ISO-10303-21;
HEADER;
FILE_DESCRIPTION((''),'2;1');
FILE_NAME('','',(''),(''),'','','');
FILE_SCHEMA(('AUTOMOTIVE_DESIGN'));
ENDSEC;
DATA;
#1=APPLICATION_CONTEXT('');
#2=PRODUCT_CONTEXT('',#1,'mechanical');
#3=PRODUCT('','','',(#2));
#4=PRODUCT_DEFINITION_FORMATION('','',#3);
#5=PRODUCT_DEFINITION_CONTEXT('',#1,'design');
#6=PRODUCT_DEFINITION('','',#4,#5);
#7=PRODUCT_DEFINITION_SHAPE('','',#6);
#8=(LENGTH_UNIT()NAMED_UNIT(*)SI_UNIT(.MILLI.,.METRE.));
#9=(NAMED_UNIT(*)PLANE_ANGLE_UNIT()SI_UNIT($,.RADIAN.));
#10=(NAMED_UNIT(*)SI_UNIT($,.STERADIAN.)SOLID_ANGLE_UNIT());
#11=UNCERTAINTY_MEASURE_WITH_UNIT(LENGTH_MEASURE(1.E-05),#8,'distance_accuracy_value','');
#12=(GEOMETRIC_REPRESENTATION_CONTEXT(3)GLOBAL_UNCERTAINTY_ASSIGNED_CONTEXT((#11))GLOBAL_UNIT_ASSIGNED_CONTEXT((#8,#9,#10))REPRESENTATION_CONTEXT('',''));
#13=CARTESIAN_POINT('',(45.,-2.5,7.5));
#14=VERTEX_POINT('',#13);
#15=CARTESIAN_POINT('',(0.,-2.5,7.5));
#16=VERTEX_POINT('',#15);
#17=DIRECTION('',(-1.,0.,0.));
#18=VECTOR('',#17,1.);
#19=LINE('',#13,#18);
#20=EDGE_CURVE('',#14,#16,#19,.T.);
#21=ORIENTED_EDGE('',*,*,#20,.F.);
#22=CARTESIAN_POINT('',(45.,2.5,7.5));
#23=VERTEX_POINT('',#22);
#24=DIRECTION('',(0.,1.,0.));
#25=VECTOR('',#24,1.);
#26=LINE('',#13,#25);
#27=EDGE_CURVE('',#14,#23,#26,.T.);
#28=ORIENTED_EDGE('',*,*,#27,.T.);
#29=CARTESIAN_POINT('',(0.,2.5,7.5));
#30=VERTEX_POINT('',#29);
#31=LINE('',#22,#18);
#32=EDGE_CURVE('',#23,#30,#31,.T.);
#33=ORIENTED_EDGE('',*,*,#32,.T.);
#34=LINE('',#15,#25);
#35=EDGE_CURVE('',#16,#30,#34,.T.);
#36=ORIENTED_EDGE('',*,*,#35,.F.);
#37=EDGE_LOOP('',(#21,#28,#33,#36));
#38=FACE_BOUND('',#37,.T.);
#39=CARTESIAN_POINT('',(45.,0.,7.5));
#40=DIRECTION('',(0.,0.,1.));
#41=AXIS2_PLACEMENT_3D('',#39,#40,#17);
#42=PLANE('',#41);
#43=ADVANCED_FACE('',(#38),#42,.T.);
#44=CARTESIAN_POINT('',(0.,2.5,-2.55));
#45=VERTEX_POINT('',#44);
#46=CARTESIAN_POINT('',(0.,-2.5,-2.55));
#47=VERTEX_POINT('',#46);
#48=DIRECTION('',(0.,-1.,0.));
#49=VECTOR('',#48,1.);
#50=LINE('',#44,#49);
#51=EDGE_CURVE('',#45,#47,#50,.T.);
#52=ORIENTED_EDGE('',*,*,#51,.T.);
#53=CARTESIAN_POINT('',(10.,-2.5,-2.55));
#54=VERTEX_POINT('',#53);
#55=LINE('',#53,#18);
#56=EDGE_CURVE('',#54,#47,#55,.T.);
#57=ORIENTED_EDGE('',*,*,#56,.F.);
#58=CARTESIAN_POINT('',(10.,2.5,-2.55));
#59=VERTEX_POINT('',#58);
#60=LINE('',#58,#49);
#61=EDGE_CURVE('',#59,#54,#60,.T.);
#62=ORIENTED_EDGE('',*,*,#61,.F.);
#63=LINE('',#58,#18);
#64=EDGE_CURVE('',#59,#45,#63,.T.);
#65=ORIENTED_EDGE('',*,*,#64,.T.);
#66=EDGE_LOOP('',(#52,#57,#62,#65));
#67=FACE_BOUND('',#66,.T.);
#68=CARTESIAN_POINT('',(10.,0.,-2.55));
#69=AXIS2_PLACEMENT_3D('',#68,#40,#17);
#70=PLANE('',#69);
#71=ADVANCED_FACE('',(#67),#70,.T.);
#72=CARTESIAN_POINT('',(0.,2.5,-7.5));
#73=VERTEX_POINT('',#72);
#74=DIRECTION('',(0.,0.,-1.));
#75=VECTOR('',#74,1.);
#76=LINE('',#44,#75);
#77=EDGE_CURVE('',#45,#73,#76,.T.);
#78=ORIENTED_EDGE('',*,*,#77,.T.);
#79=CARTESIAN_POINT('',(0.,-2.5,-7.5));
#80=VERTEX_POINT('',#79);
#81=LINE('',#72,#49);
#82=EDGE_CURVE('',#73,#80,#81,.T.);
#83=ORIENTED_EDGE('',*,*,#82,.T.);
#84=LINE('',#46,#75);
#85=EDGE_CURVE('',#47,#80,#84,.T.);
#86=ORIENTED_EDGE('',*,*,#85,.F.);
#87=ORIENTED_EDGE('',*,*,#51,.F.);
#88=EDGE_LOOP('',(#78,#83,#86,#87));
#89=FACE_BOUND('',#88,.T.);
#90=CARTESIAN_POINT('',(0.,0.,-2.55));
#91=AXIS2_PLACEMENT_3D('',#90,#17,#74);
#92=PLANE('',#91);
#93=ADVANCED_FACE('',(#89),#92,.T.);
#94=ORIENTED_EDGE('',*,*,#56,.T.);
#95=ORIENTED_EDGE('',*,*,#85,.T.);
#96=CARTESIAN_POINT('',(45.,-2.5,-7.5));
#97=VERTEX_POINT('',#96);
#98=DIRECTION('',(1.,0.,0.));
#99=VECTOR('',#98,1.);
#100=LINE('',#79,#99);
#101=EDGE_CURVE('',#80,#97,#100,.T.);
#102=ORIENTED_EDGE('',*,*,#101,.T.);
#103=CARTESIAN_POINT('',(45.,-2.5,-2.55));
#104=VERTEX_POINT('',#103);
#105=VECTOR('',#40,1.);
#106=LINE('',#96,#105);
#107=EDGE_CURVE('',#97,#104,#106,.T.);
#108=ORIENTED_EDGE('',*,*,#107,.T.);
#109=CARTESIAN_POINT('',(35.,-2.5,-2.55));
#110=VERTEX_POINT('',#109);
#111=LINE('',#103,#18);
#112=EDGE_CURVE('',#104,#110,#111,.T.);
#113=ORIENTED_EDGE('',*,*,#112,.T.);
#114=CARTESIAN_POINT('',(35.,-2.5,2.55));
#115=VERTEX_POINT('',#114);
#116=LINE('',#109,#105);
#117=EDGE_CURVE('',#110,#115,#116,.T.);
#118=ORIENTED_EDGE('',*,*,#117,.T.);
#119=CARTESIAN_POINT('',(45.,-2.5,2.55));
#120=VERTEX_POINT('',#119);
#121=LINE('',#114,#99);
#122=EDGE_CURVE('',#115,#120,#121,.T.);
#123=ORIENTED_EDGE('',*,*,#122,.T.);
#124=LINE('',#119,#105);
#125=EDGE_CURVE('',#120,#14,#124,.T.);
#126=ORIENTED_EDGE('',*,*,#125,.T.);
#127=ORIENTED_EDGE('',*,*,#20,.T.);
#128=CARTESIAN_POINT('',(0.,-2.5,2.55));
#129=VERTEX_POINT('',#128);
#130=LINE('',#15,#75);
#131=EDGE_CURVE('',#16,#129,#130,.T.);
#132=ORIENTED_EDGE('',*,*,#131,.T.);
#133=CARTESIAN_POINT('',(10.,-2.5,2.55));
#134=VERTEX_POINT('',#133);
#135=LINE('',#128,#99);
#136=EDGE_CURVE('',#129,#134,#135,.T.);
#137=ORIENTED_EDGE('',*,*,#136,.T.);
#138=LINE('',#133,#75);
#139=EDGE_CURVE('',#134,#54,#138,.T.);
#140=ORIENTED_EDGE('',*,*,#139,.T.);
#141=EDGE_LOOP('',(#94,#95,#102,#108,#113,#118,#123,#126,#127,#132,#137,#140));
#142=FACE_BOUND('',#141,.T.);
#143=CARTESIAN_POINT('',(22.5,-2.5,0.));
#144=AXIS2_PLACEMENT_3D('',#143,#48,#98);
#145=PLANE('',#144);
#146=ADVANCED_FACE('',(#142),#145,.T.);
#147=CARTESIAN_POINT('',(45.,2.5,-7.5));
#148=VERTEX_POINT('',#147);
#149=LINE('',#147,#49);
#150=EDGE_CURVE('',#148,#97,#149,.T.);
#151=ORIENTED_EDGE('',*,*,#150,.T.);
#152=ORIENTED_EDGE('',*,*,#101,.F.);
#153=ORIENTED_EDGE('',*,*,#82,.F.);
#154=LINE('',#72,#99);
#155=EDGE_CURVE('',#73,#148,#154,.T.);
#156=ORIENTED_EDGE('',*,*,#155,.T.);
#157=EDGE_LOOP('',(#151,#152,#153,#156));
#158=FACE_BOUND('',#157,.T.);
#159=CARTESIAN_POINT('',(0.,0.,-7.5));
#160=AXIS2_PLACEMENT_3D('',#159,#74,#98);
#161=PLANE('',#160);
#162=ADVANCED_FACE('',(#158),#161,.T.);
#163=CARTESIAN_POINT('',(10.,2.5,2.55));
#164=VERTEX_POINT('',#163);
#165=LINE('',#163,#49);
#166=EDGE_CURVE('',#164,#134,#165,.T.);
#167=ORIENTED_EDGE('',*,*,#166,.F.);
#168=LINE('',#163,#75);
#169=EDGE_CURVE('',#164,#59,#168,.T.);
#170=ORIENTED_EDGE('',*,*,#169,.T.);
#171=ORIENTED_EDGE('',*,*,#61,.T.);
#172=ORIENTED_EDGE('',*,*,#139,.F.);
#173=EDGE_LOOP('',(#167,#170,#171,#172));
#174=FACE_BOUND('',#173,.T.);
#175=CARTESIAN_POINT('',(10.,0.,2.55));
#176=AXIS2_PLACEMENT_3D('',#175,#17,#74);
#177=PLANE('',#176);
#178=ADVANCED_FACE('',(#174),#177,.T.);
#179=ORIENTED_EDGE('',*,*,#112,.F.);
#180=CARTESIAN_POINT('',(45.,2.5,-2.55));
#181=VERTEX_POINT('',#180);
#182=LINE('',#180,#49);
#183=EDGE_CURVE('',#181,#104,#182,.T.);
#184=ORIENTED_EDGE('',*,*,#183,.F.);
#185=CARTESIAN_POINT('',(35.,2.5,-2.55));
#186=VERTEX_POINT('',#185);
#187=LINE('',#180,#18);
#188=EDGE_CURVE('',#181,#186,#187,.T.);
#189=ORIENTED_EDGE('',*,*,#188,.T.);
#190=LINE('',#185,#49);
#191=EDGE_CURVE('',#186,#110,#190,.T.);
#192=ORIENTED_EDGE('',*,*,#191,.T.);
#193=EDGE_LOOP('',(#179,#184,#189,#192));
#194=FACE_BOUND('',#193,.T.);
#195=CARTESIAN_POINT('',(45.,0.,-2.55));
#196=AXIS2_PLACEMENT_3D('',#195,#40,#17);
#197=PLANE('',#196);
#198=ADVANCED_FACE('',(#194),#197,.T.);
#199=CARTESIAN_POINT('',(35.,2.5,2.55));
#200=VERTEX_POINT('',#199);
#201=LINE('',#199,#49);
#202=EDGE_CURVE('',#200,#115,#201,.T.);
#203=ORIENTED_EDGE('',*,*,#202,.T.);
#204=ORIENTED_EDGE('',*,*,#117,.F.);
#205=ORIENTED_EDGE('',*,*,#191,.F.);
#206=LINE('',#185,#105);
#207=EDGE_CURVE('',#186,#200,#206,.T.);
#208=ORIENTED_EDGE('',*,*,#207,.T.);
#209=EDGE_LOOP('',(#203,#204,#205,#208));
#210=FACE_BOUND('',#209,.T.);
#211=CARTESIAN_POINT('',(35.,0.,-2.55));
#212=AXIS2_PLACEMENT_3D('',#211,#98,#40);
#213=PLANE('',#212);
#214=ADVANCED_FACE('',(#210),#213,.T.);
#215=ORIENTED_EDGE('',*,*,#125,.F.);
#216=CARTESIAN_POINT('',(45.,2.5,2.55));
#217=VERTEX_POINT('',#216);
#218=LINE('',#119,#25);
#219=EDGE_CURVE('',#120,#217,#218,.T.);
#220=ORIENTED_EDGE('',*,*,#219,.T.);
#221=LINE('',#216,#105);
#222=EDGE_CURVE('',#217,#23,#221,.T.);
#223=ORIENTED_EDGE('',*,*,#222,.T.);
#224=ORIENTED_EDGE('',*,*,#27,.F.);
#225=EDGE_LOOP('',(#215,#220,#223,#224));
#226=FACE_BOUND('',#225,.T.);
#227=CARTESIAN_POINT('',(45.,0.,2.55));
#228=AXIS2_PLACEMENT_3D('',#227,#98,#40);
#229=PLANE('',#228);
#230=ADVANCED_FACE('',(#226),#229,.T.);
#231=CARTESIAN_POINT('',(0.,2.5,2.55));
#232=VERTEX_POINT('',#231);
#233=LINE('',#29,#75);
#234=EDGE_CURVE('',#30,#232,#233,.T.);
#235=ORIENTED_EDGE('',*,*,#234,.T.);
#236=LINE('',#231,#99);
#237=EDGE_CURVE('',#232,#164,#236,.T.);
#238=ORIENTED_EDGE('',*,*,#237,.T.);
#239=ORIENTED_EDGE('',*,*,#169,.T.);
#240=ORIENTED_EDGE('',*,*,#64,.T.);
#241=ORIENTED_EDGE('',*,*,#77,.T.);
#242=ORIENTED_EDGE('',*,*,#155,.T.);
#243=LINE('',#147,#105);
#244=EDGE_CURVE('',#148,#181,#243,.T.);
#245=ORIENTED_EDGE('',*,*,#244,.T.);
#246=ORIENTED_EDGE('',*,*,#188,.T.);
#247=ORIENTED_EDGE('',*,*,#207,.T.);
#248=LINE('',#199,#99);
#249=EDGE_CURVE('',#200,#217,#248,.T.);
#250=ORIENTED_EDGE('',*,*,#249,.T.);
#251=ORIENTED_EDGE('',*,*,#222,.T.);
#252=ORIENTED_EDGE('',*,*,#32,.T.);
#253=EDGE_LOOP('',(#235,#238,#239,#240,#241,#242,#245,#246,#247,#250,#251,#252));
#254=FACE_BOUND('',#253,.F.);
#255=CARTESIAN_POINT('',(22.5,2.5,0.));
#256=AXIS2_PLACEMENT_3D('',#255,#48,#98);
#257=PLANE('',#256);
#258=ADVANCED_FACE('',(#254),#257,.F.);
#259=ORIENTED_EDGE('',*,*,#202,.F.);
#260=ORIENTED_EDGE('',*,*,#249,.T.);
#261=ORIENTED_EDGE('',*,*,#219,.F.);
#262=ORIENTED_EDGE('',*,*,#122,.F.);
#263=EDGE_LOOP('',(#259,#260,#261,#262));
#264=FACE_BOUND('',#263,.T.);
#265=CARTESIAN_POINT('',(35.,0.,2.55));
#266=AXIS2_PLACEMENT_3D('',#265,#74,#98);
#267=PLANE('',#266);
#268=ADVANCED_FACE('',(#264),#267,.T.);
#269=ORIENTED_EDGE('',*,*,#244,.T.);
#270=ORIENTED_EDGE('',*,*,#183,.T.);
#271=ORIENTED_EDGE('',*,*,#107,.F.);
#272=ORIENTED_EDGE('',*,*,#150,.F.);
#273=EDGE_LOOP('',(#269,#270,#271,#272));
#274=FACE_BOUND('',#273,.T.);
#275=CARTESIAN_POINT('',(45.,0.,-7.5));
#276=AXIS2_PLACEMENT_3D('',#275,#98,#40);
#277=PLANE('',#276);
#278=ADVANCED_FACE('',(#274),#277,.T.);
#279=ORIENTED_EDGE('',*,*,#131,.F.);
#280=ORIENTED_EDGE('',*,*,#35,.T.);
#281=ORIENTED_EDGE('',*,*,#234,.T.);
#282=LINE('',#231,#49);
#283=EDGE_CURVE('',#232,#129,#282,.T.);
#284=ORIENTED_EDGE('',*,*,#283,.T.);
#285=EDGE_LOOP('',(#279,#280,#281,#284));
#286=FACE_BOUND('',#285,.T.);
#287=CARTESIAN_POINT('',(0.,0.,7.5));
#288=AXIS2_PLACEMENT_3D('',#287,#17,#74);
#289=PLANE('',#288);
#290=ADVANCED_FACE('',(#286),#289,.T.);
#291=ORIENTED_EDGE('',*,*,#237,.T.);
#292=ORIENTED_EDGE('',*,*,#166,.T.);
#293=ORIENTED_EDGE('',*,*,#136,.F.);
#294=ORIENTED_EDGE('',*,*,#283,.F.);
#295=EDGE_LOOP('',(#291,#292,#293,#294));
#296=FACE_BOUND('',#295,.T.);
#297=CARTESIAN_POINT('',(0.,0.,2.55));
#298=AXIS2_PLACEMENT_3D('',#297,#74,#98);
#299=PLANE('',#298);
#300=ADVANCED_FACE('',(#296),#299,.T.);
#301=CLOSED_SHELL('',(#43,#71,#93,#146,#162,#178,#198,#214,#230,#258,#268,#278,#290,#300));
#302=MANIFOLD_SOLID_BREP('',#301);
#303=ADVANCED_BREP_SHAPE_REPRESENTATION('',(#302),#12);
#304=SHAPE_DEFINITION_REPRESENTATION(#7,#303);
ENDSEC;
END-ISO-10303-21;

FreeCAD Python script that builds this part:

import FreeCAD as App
import Part
import Sketcher

V = App.Vector
Q = App.Units.Quantity


def add_polygon(sketch, points):
    """Adds a closed chain of lines whose ends are joined by coincident constraints."""
    first, n = sketch.GeometryCount, len(points)
    for a, b in zip(points, points[1:] + points[:1]):
        sketch.addGeometry(Part.LineSegment(App.Vector(*a, 0), App.Vector(*b, 0)), False)
    for i in range(n):
        sketch.addConstraint(Sketcher.Constraint("Coincident", first + i, 2, first + (i + 1) % n, 1))

doc = App.newDocument("Part")
body = doc.addObject("PartDesign::Body", "Body")

# Sketch on XZ plane
sketch1 = doc.addObject("Sketcher::SketchObject", "Sketch")
body.addObject(sketch1)
sketch1.AttachmentSupport = (doc.XZ_Plane, [""])
sketch1.MapMode = "FlatFace"
add_polygon(sketch1, [(0, 7.5), (0, 2.5), (10, 2.5), (10, -2.5), (0, -2.5), (0, -7.5), (45, -7.5), (45, -2.5), (35, -2.5), (35, 2.5), (45, 2.5), (45, 7.5)])  # lines 0-11
sketch1.addConstraint(Sketcher.Constraint("Vertical", 0))
sketch1.addConstraint(Sketcher.Constraint("Horizontal", 1))
sketch1.addConstraint(Sketcher.Constraint("Vertical", 2))
sketch1.addConstraint(Sketcher.Constraint("Horizontal", 3))
sketch1.addConstraint(Sketcher.Constraint("Vertical", 4))
sketch1.addConstraint(Sketcher.Constraint("Horizontal", 5))
sketch1.addConstraint(Sketcher.Constraint("Vertical", 6))
sketch1.addConstraint(Sketcher.Constraint("Horizontal", 7))
sketch1.addConstraint(Sketcher.Constraint("Vertical", 8))
sketch1.addConstraint(Sketcher.Constraint("Horizontal", 9))
sketch1.addConstraint(Sketcher.Constraint("Vertical", 10))
sketch1.addConstraint(Sketcher.Constraint("Horizontal", 11))
sketch1.addConstraint(Sketcher.Constraint("Symmetric", 0, 2, 3, 2, -1, 1))
sketch1.addConstraint(Sketcher.Constraint("Symmetric", 6, 2, 9, 2, -1))
sketch1.addConstraint(Sketcher.Constraint("Symmetric", 4, 2, 11, 2, -1))
sketch1.addConstraint(Sketcher.Constraint("Horizontal", 3, 2, 6, 2))
sketch1.addConstraint(Sketcher.Constraint("Equal", 3, 7))
sketch1.addConstraint(Sketcher.Constraint("DistanceX", 1, 1, 1, 2, Q("10 mm")))
sketch1.addConstraint(Sketcher.Constraint("DistanceX", 5, 1, 5, 2, Q("45 mm")))
sketch1.addConstraint(Sketcher.Constraint("DistanceY", 2, 2, 2, 1, Q("5.1 mm")))
sketch1.addConstraint(Sketcher.Constraint("DistanceY", 5, 2, 10, 2, Q("15 mm")))
pad1 = doc.addObject("PartDesign::Pad", "Pad")
body.addObject(pad1)
pad1.Profile = sketch1
pad1.Length = 5
pad1.Midplane = True

doc.recompute()
